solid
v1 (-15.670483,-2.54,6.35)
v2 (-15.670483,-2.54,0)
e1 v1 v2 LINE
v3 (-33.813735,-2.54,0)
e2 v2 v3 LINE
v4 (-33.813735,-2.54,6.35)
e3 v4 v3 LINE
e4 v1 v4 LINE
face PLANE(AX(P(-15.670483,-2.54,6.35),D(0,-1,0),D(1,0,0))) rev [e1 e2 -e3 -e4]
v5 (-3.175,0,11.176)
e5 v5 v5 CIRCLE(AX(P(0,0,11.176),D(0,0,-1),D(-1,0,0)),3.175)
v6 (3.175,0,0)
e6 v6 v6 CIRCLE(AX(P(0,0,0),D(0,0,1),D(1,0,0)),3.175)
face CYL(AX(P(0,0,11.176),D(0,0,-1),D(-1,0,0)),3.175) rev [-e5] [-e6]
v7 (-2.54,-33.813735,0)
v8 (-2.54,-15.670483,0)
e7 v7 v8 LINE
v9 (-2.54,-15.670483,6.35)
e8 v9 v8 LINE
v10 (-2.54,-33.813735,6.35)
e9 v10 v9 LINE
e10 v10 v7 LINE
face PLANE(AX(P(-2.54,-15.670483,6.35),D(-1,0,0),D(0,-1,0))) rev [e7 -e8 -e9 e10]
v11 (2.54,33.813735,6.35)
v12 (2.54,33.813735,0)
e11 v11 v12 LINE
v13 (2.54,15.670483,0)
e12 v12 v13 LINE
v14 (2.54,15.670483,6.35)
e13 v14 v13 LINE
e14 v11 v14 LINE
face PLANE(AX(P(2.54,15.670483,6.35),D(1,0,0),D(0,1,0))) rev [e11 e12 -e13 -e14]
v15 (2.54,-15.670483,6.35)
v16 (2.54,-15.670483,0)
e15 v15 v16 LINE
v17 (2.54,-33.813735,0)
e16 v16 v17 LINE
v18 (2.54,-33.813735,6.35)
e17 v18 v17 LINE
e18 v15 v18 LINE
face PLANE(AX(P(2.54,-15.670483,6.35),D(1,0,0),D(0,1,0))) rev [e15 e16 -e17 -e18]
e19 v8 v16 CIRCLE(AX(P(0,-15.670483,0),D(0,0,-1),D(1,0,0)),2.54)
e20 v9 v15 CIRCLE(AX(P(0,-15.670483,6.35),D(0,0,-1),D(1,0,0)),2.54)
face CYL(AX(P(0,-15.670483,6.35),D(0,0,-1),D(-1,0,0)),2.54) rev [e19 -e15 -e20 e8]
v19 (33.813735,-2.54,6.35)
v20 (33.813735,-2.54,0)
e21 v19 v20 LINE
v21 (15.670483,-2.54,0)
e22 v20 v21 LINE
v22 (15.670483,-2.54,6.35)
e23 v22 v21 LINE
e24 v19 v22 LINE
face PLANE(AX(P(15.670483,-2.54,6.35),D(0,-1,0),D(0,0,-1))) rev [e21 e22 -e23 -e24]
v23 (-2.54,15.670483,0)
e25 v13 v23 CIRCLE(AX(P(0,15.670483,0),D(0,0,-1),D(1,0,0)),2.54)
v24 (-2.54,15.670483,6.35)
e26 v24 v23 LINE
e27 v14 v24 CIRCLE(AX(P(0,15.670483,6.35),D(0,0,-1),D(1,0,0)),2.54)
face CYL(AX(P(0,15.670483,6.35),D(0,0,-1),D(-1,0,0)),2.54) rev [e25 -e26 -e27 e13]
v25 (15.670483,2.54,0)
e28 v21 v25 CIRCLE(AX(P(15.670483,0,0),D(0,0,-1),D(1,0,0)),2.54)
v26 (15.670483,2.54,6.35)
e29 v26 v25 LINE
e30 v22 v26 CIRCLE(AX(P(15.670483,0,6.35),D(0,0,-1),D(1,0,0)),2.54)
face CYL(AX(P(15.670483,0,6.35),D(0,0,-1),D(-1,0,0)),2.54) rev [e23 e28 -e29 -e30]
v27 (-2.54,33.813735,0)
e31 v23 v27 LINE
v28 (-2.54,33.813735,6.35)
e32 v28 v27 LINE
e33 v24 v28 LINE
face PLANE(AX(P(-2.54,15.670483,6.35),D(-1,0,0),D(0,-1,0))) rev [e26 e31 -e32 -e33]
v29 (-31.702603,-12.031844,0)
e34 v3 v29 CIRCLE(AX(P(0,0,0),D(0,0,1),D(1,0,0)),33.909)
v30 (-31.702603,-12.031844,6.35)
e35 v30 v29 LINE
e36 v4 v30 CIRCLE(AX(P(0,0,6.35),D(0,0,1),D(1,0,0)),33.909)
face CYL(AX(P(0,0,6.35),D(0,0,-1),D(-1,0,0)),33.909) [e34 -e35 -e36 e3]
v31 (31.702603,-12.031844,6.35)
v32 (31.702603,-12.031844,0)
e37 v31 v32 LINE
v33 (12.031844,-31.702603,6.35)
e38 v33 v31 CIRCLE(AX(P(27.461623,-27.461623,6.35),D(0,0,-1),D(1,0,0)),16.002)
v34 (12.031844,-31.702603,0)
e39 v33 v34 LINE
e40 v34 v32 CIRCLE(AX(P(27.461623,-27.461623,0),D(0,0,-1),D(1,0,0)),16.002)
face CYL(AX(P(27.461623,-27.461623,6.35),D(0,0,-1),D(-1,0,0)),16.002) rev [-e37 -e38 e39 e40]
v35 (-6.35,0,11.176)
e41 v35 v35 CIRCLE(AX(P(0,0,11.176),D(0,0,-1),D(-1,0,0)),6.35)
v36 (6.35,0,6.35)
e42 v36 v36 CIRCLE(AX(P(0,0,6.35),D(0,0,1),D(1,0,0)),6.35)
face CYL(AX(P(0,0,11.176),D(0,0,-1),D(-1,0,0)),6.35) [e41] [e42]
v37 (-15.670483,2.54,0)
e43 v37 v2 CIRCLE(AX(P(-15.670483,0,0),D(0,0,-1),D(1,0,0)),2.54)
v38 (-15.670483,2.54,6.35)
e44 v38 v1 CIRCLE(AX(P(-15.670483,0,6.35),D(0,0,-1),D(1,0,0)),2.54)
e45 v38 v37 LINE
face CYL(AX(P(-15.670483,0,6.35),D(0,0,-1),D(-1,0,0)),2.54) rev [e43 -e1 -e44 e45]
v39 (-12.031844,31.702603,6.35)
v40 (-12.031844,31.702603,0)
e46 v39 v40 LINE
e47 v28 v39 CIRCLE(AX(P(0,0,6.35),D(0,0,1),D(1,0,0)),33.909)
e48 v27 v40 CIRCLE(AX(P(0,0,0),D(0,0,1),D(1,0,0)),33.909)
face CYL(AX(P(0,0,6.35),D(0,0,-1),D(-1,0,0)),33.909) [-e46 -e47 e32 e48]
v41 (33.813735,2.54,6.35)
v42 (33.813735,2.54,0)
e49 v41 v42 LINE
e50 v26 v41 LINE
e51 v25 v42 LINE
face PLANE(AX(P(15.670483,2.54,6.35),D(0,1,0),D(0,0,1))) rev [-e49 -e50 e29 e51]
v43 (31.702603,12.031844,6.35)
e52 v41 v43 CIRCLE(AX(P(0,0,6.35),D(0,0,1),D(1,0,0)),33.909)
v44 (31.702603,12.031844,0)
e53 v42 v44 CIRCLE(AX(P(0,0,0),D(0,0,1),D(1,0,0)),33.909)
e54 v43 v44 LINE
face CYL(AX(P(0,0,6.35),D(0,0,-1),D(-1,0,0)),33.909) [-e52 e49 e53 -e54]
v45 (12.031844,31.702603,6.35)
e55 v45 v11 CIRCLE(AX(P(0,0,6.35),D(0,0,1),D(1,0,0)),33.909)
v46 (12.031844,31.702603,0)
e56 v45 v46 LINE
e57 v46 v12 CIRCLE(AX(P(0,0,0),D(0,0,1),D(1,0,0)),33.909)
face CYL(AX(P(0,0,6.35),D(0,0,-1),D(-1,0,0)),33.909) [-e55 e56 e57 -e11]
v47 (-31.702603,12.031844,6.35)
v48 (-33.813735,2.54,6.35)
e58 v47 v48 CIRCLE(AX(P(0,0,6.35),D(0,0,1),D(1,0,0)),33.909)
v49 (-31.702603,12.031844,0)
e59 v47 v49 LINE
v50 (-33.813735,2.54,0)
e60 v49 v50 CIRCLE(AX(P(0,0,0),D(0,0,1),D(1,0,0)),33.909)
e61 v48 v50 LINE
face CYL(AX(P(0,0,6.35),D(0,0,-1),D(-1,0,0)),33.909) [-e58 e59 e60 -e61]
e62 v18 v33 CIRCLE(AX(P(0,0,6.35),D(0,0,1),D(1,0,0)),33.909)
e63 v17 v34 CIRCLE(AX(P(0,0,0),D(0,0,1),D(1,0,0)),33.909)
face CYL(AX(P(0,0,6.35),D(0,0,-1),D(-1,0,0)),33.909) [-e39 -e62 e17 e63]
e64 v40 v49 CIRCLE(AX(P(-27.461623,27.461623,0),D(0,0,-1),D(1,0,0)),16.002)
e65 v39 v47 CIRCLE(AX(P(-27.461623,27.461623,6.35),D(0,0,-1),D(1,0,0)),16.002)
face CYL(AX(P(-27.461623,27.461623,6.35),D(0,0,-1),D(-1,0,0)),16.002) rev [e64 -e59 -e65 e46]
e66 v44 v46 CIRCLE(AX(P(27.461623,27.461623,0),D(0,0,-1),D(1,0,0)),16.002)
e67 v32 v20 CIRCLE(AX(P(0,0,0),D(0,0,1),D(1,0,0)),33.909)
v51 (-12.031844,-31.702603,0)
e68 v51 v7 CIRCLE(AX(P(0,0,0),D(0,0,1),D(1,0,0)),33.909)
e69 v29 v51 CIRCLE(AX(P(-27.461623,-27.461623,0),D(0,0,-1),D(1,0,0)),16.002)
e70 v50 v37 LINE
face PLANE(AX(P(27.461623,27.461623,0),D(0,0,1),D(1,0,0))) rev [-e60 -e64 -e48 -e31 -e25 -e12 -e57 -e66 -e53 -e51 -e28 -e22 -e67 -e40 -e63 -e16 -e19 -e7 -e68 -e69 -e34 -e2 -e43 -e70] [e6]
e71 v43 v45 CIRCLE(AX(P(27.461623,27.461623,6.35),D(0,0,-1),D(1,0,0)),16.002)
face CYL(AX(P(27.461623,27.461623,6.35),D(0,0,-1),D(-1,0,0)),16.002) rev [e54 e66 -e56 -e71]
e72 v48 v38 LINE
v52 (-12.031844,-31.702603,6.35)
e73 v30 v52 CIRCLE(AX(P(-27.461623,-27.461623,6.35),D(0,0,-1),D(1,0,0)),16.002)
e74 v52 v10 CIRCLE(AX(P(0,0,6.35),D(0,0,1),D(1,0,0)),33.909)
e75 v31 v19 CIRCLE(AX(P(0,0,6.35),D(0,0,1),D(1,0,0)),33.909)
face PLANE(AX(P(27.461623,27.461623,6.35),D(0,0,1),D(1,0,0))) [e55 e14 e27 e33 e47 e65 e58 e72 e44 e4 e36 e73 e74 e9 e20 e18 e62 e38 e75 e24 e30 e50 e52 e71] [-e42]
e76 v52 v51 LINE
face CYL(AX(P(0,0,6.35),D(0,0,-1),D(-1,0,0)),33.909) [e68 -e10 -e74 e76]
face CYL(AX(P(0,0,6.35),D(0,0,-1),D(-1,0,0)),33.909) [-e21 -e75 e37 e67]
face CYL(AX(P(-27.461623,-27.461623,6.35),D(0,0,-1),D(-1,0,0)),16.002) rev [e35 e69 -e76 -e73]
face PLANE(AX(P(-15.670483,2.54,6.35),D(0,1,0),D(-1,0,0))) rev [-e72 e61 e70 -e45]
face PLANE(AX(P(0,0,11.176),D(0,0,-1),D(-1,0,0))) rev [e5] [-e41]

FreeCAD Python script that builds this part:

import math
import FreeCAD as App
import Part
import Sketcher
from FreeCAD import Vector
Q = App.Units.Quantity

doc = App.newDocument("Part")
body = doc.addObject("PartDesign::Body", "Body")

# Sketch on XY plane
sketch1 = doc.addObject("Sketcher::SketchObject", "Sketch")
body.addObject(sketch1)
sketch1.AttachmentSupport = (doc.XY_Plane, [""])
sketch1.MapMode = "FlatFace"
sketch1.addGeometry(Part.LineSegment(Vector(33.8, -2.5, 0), Vector(15.7, -2.5, 0)), False)
sketch1.addGeometry(Part.ArcOfCircle(Part.Circle(Vector(15.7, 0, 0), Vector(0, 0, 1), 2.5), math.radians(90), math.radians(270)), False)
sketch1.addGeometry(Part.LineSegment(Vector(15.7, 2.5, 0), Vector(33.8, 2.5, 0)), False)
sketch1.addGeometry(Part.ArcOfCircle(Part.Circle(Vector(0, 0, 0), Vector(0, 0, 1), 33.9), math.radians(4.3), math.radians(20.78)), False)
sketch1.addGeometry(Part.ArcOfCircle(Part.Circle(Vector(27.5, 27.5, 0), Vector(0, 0, 1), 16), math.radians(165), math.radians(285)), False)
sketch1.addGeometry(Part.ArcOfCircle(Part.Circle(Vector(0, 0, 0), Vector(0, 0, 1), 33.9), math.radians(69.22), math.radians(85.7)), False)
sketch1.addGeometry(Part.LineSegment(Vector(2.5, 33.8, 0), Vector(2.5, 15.7, 0)), False)
sketch1.addGeometry(Part.ArcOfCircle(Part.Circle(Vector(0, 15.7, 0), Vector(0, 0, 1), 2.5), math.radians(180), math.radians(360)), False)
sketch1.addGeometry(Part.LineSegment(Vector(-2.5, 15.7, 0), Vector(-2.5, 33.8, 0)), False)
sketch1.addGeometry(Part.ArcOfCircle(Part.Circle(Vector(0, 0, 0), Vector(0, 0, 1), 33.9), math.radians(94.3), math.radians(110.78)), False)
sketch1.addGeometry(Part.ArcOfCircle(Part.Circle(Vector(-27.5, 27.5, 0), Vector(0, 0, 1), 16), math.radians(-105), math.radians(15)), False)
sketch1.addGeometry(Part.ArcOfCircle(Part.Circle(Vector(0, 0, 0), Vector(0, 0, 1), 33.9), math.radians(159.22), math.radians(175.7)), False)
sketch1.addGeometry(Part.LineSegment(Vector(-33.8, 2.5, 0), Vector(-15.7, 2.5, 0)), False)
sketch1.addGeometry(Part.ArcOfCircle(Part.Circle(Vector(-15.7, 0, 0), Vector(0, 0, 1), 2.5), math.radians(-90), math.radians(90)), False)
sketch1.addGeometry(Part.LineSegment(Vector(-15.7, -2.5, 0), Vector(-33.8, -2.5, 0)), False)
sketch1.addGeometry(Part.ArcOfCircle(Part.Circle(Vector(0, 0, 0), Vector(0, 0, 1), 33.9), math.radians(-175.7), math.radians(-159.22)), False)
sketch1.addGeometry(Part.ArcOfCircle(Part.Circle(Vector(-27.5, -27.5, 0), Vector(0, 0, 1), 16), math.radians(-15), math.radians(105)), False)
sketch1.addGeometry(Part.ArcOfCircle(Part.Circle(Vector(0, 0, 0), Vector(0, 0, 1), 33.9), math.radians(-110.78), math.radians(-94.3)), False)
sketch1.addGeometry(Part.LineSegment(Vector(-2.5, -33.8, 0), Vector(-2.5, -15.7, 0)), False)
sketch1.addGeometry(Part.ArcOfCircle(Part.Circle(Vector(0, -15.7, 0), Vector(0, 0, 1), 2.5), math.radians(0), math.radians(180)), False)
sketch1.addGeometry(Part.LineSegment(Vector(2.5, -15.7, 0), Vector(2.5, -33.8, 0)), False)
sketch1.addGeometry(Part.ArcOfCircle(Part.Circle(Vector(0, 0, 0), Vector(0, 0, 1), 33.9), math.radians(-85.7), math.radians(-69.22)), False)
sketch1.addGeometry(Part.ArcOfCircle(Part.Circle(Vector(27.5, -27.5, 0), Vector(0, 0, 1), 16), math.radians(75), math.radians(195)), False)
sketch1.addGeometry(Part.ArcOfCircle(Part.Circle(Vector(0, 0, 0), Vector(0, 0, 1), 33.9), math.radians(-20.78), math.radians(-4.3)), False)
sketch1.addConstraint(Sketcher.Constraint("Tangent", 0, 2, 1, 2))
sketch1.addConstraint(Sketcher.Constraint("Tangent", 1, 1, 2, 1))
sketch1.addConstraint(Sketcher.Constraint("Coincident", 2, 2, 3, 1))
sketch1.addConstraint(Sketcher.Constraint("Coincident", 3, 2, 4, 2))
sketch1.addConstraint(Sketcher.Constraint("Coincident", 4, 1, 5, 1))
sketch1.addConstraint(Sketcher.Constraint("Coincident", 5, 2, 6, 1))
sketch1.addConstraint(Sketcher.Constraint("Tangent", 6, 2, 7, 2))
sketch1.addConstraint(Sketcher.Constraint("Tangent", 7, 1, 8, 1))
sketch1.addConstraint(Sketcher.Constraint("Coincident", 8, 2, 9, 1))
sketch1.addConstraint(Sketcher.Constraint("Coincident", 9, 2, 10, 2))
sketch1.addConstraint(Sketcher.Constraint("Coincident", 10, 1, 11, 1))
sketch1.addConstraint(Sketcher.Constraint("Coincident", 11, 2, 12, 1))
sketch1.addConstraint(Sketcher.Constraint("Tangent", 12, 2, 13, 2))
sketch1.addConstraint(Sketcher.Constraint("Tangent", 13, 1, 14, 1))
sketch1.addConstraint(Sketcher.Constraint("Coincident", 14, 2, 15, 1))
sketch1.addConstraint(Sketcher.Constraint("Coincident", 15, 2, 16, 2))
sketch1.addConstraint(Sketcher.Constraint("Coincident", 16, 1, 17, 1))
sketch1.addConstraint(Sketcher.Constraint("Coincident", 17, 2, 18, 1))
sketch1.addConstraint(Sketcher.Constraint("Tangent", 18, 2, 19, 2))
sketch1.addConstraint(Sketcher.Constraint("Tangent", 19, 1, 20, 1))
sketch1.addConstraint(Sketcher.Constraint("Coincident", 20, 2, 21, 1))
sketch1.addConstraint(Sketcher.Constraint("Coincident", 21, 2, 22, 2))
sketch1.addConstraint(Sketcher.Constraint("Coincident", 22, 1, 23, 1))
sketch1.addConstraint(Sketcher.Constraint("Coincident", 23, 2, 0, 1))
sketch1.addConstraint(Sketcher.Constraint("Horizontal", 0))
sketch1.addConstraint(Sketcher.Constraint("Horizontal", 2))
sketch1.addConstraint(Sketcher.Constraint("Vertical", 6))
sketch1.addConstraint(Sketcher.Constraint("Vertical", 8))
sketch1.addConstraint(Sketcher.Constraint("Horizontal", 12))
sketch1.addConstraint(Sketcher.Constraint("Horizontal", 14))
sketch1.addConstraint(Sketcher.Constraint("Vertical", 18))
sketch1.addConstraint(Sketcher.Constraint("Vertical", 20))
sketch1.addConstraint(Sketcher.Constraint("Coincident", 3, 3, -1, 1))
sketch1.addConstraint(Sketcher.Constraint("Coincident", 5, 3, -1, 1))
sketch1.addConstraint(Sketcher.Constraint("Coincident", 9, 3, -1, 1))
sketch1.addConstraint(Sketcher.Constraint("Coincident", 11, 3, -1, 1))
sketch1.addConstraint(Sketcher.Constraint("Coincident", 15, 3, -1, 1))
sketch1.addConstraint(Sketcher.Constraint("Coincident", 17, 3, -1, 1))
sketch1.addConstraint(Sketcher.Constraint("Coincident", 21, 3, -1, 1))
sketch1.addConstraint(Sketcher.Constraint("Coincident", 23, 3, -1, 1))
sketch1.addConstraint(Sketcher.Constraint("Equal", 3, 5))
sketch1.addConstraint(Sketcher.Constraint("Equal", 1, 7))
sketch1.addConstraint(Sketcher.Constraint("Equal", 5, 9))
sketch1.addConstraint(Sketcher.Constraint("Equal", 4, 10))
sketch1.addConstraint(Sketcher.Constraint("Equal", 9, 11))
sketch1.addConstraint(Sketcher.Constraint("Equal", 7, 13))
sketch1.addConstraint(Sketcher.Constraint("Equal", 11, 15))
sketch1.addConstraint(Sketcher.Constraint("Equal", 10, 16))
sketch1.addConstraint(Sketcher.Constraint("Equal", 15, 17))
sketch1.addConstraint(Sketcher.Constraint("Equal", 13, 19))
sketch1.addConstraint(Sketcher.Constraint("Equal", 17, 21))
sketch1.addConstraint(Sketcher.Constraint("Equal", 16, 22))
sketch1.addConstraint(Sketcher.Constraint("Equal", 21, 23))
sketch1.addConstraint(Sketcher.Constraint("Symmetric", 1, 3, 13, 3, -1, 1))
sketch1.addConstraint(Sketcher.Constraint("Symmetric", 4, 3, 16, 3, -1, 1))
sketch1.addConstraint(Sketcher.Constraint("Symmetric", 7, 3, 19, 3, -1, 1))
sketch1.addConstraint(Sketcher.Constraint("Symmetric", 10, 3, 22, 3, -1, 1))
sketch1.addConstraint(Sketcher.Constraint("Symmetric", 4, 3, 10, 3, -2))
sketch1.addConstraint(Sketcher.Constraint("PointOnObject", 1, 3, -1))
sketch1.addConstraint(Sketcher.Constraint("PointOnObject", 7, 3, -2))
sketch1.addConstraint(Sketcher.Constraint("Equal", 14, 6))
sketch1.addConstraint(Sketcher.Constraint("Radius", 1, Q("0.1 in")))
sketch1.addConstraint(Sketcher.Constraint("Radius", 4, Q("0.63 in")))
sketch1.addConstraint(Sketcher.Constraint("Radius", 3, Q("1.335 in")))
sketch1.addConstraint(Sketcher.Constraint("DistanceX", 0, 2, 0, 1, Q("18.143252 mm")))
sketch1.addConstraint(Sketcher.Constraint("DistanceX", 1, 3, 4, 3, Q("11.791141 mm")))
sketch1.addConstraint(Sketcher.Constraint("DistanceY", 7, 3, 4, 3, Q("11.791141 mm")))
pad1 = doc.addObject("PartDesign::Pad", "Pad")
body.addObject(pad1)
pad1.Profile = sketch1
pad1.Length = Q("0.25 in")

# Sketch on XY plane
sketch2 = doc.addObject("Sketcher::SketchObject", "Sketch001")
body.addObject(sketch2)
sketch2.AttachmentSupport = (doc.XY_Plane, [""])
sketch2.MapMode = "FlatFace"
sketch2.addGeometry(Part.Circle(Vector(0, 0, 0), Vector(0, 0, 1), 6.3), False)
sketch2.addGeometry(Part.Circle(Vector(0, 0, 0), Vector(0, 0, 1), 3.2), False)
sketch2.addConstraint(Sketcher.Constraint("Coincident", 0, 3, -1, 1))
sketch2.addConstraint(Sketcher.Constraint("Coincident", 1, 3, -1, 1))
sketch2.addConstraint(Sketcher.Constraint("Diameter", 0, Q("0.5 in")))
sketch2.addConstraint(Sketcher.Constraint("Diameter", 1, Q("0.25 in")))
pad2 = doc.addObject("PartDesign::Pad", "Pad001")
body.addObject(pad2)
pad2.Profile = sketch2
pad2.Length = Q("0.44 in")

# Sketch on XY plane
sketch3 = doc.addObject("Sketcher::SketchObject", "Sketch002")
body.addObject(sketch3)
sketch3.AttachmentSupport = (doc.XY_Plane, [""])
sketch3.MapMode = "FlatFace"
sketch3.AttachmentOffset = App.Placement(Vector(0, 0, 0.25 * 25.4), App.Rotation())
sketch3.addGeometry(Part.Circle(Vector(0, 0, 0), Vector(0, 0, 1), 3.2), False)
sketch3.addConstraint(Sketcher.Constraint("Coincident", 0, 3, -1, 1))
sketch3.addConstraint(Sketcher.Constraint("Diameter", 0, Q("0.25 in")))
pocket1 = doc.addObject("PartDesign::Pocket", "Pocket")
body.addObject(pocket1)
pocket1.Profile = sketch3
pocket1.Type = "ThroughAll"

doc.recompute()
